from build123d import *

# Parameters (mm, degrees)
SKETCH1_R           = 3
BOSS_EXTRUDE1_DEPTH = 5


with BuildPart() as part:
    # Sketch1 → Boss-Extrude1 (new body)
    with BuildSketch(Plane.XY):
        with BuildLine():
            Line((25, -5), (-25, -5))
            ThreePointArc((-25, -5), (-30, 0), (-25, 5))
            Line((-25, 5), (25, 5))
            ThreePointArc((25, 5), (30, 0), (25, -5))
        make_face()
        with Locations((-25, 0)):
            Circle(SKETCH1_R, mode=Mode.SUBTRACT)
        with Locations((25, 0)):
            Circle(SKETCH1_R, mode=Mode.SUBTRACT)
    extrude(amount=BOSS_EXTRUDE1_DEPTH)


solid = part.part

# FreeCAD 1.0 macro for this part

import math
import FreeCAD as App
import Part
import Sketcher

V = App.Vector

doc = App.newDocument("Part")
body = doc.addObject("PartDesign::Body", "Body")

sketch1 = doc.addObject("Sketcher::SketchObject", "Sketch")
body.addObject(sketch1)
sketch1.AttachmentSupport = (doc.XY_Plane, [""])
sketch1.MapMode = "FlatFace"
sketch1.addGeometry([
    Part.LineSegment(V(-25, -5, 0), V(25, -5, 0)),
    Part.ArcOfCircle(Part.Circle(V(25, 0, 0), V(0, 0, 1), 5), math.radians(-90), math.radians(90)),
    Part.LineSegment(V(25, 5, 0), V(-25, 5, 0)),
    Part.ArcOfCircle(Part.Circle(V(-25, 0, 0), V(0, 0, 1), 5), math.radians(90), math.radians(270)),
    Part.Circle(V(25, 0, 0), V(0, 0, 1), 3),
    Part.Circle(V(-25, 0, 0), V(0, 0, 1), 3),
], False)
sketch1.addConstraint([
    Sketcher.Constraint("Tangent", 0, 2, 1, 1),
    Sketcher.Constraint("Tangent", 1, 2, 2, 1),
    Sketcher.Constraint("Tangent", 2, 2, 3, 1),
    Sketcher.Constraint("Tangent", 3, 2, 0, 1),
    Sketcher.Constraint("Horizontal", 0),
    Sketcher.Constraint("Horizontal", 2),
    Sketcher.Constraint("Coincident", 4, 3, 1, 3),
    Sketcher.Constraint("Coincident", 5, 3, 3, 3),
    Sketcher.Constraint("Equal", 4, 5),
    Sketcher.Constraint("Symmetric", 1, 3, 3, 3, -1, 1),
    Sketcher.Constraint("Diameter", 4, 6.0),
    Sketcher.Constraint("Radius", 1, 5.0),
    Sketcher.Constraint("DistanceX", 0, 1, 0, 2, 50.0),
])
pad1 = doc.addObject("PartDesign::Pad", "Pad")
body.addObject(pad1)
pad1.Profile = sketch1
pad1.Length = 5

doc.recompute()
